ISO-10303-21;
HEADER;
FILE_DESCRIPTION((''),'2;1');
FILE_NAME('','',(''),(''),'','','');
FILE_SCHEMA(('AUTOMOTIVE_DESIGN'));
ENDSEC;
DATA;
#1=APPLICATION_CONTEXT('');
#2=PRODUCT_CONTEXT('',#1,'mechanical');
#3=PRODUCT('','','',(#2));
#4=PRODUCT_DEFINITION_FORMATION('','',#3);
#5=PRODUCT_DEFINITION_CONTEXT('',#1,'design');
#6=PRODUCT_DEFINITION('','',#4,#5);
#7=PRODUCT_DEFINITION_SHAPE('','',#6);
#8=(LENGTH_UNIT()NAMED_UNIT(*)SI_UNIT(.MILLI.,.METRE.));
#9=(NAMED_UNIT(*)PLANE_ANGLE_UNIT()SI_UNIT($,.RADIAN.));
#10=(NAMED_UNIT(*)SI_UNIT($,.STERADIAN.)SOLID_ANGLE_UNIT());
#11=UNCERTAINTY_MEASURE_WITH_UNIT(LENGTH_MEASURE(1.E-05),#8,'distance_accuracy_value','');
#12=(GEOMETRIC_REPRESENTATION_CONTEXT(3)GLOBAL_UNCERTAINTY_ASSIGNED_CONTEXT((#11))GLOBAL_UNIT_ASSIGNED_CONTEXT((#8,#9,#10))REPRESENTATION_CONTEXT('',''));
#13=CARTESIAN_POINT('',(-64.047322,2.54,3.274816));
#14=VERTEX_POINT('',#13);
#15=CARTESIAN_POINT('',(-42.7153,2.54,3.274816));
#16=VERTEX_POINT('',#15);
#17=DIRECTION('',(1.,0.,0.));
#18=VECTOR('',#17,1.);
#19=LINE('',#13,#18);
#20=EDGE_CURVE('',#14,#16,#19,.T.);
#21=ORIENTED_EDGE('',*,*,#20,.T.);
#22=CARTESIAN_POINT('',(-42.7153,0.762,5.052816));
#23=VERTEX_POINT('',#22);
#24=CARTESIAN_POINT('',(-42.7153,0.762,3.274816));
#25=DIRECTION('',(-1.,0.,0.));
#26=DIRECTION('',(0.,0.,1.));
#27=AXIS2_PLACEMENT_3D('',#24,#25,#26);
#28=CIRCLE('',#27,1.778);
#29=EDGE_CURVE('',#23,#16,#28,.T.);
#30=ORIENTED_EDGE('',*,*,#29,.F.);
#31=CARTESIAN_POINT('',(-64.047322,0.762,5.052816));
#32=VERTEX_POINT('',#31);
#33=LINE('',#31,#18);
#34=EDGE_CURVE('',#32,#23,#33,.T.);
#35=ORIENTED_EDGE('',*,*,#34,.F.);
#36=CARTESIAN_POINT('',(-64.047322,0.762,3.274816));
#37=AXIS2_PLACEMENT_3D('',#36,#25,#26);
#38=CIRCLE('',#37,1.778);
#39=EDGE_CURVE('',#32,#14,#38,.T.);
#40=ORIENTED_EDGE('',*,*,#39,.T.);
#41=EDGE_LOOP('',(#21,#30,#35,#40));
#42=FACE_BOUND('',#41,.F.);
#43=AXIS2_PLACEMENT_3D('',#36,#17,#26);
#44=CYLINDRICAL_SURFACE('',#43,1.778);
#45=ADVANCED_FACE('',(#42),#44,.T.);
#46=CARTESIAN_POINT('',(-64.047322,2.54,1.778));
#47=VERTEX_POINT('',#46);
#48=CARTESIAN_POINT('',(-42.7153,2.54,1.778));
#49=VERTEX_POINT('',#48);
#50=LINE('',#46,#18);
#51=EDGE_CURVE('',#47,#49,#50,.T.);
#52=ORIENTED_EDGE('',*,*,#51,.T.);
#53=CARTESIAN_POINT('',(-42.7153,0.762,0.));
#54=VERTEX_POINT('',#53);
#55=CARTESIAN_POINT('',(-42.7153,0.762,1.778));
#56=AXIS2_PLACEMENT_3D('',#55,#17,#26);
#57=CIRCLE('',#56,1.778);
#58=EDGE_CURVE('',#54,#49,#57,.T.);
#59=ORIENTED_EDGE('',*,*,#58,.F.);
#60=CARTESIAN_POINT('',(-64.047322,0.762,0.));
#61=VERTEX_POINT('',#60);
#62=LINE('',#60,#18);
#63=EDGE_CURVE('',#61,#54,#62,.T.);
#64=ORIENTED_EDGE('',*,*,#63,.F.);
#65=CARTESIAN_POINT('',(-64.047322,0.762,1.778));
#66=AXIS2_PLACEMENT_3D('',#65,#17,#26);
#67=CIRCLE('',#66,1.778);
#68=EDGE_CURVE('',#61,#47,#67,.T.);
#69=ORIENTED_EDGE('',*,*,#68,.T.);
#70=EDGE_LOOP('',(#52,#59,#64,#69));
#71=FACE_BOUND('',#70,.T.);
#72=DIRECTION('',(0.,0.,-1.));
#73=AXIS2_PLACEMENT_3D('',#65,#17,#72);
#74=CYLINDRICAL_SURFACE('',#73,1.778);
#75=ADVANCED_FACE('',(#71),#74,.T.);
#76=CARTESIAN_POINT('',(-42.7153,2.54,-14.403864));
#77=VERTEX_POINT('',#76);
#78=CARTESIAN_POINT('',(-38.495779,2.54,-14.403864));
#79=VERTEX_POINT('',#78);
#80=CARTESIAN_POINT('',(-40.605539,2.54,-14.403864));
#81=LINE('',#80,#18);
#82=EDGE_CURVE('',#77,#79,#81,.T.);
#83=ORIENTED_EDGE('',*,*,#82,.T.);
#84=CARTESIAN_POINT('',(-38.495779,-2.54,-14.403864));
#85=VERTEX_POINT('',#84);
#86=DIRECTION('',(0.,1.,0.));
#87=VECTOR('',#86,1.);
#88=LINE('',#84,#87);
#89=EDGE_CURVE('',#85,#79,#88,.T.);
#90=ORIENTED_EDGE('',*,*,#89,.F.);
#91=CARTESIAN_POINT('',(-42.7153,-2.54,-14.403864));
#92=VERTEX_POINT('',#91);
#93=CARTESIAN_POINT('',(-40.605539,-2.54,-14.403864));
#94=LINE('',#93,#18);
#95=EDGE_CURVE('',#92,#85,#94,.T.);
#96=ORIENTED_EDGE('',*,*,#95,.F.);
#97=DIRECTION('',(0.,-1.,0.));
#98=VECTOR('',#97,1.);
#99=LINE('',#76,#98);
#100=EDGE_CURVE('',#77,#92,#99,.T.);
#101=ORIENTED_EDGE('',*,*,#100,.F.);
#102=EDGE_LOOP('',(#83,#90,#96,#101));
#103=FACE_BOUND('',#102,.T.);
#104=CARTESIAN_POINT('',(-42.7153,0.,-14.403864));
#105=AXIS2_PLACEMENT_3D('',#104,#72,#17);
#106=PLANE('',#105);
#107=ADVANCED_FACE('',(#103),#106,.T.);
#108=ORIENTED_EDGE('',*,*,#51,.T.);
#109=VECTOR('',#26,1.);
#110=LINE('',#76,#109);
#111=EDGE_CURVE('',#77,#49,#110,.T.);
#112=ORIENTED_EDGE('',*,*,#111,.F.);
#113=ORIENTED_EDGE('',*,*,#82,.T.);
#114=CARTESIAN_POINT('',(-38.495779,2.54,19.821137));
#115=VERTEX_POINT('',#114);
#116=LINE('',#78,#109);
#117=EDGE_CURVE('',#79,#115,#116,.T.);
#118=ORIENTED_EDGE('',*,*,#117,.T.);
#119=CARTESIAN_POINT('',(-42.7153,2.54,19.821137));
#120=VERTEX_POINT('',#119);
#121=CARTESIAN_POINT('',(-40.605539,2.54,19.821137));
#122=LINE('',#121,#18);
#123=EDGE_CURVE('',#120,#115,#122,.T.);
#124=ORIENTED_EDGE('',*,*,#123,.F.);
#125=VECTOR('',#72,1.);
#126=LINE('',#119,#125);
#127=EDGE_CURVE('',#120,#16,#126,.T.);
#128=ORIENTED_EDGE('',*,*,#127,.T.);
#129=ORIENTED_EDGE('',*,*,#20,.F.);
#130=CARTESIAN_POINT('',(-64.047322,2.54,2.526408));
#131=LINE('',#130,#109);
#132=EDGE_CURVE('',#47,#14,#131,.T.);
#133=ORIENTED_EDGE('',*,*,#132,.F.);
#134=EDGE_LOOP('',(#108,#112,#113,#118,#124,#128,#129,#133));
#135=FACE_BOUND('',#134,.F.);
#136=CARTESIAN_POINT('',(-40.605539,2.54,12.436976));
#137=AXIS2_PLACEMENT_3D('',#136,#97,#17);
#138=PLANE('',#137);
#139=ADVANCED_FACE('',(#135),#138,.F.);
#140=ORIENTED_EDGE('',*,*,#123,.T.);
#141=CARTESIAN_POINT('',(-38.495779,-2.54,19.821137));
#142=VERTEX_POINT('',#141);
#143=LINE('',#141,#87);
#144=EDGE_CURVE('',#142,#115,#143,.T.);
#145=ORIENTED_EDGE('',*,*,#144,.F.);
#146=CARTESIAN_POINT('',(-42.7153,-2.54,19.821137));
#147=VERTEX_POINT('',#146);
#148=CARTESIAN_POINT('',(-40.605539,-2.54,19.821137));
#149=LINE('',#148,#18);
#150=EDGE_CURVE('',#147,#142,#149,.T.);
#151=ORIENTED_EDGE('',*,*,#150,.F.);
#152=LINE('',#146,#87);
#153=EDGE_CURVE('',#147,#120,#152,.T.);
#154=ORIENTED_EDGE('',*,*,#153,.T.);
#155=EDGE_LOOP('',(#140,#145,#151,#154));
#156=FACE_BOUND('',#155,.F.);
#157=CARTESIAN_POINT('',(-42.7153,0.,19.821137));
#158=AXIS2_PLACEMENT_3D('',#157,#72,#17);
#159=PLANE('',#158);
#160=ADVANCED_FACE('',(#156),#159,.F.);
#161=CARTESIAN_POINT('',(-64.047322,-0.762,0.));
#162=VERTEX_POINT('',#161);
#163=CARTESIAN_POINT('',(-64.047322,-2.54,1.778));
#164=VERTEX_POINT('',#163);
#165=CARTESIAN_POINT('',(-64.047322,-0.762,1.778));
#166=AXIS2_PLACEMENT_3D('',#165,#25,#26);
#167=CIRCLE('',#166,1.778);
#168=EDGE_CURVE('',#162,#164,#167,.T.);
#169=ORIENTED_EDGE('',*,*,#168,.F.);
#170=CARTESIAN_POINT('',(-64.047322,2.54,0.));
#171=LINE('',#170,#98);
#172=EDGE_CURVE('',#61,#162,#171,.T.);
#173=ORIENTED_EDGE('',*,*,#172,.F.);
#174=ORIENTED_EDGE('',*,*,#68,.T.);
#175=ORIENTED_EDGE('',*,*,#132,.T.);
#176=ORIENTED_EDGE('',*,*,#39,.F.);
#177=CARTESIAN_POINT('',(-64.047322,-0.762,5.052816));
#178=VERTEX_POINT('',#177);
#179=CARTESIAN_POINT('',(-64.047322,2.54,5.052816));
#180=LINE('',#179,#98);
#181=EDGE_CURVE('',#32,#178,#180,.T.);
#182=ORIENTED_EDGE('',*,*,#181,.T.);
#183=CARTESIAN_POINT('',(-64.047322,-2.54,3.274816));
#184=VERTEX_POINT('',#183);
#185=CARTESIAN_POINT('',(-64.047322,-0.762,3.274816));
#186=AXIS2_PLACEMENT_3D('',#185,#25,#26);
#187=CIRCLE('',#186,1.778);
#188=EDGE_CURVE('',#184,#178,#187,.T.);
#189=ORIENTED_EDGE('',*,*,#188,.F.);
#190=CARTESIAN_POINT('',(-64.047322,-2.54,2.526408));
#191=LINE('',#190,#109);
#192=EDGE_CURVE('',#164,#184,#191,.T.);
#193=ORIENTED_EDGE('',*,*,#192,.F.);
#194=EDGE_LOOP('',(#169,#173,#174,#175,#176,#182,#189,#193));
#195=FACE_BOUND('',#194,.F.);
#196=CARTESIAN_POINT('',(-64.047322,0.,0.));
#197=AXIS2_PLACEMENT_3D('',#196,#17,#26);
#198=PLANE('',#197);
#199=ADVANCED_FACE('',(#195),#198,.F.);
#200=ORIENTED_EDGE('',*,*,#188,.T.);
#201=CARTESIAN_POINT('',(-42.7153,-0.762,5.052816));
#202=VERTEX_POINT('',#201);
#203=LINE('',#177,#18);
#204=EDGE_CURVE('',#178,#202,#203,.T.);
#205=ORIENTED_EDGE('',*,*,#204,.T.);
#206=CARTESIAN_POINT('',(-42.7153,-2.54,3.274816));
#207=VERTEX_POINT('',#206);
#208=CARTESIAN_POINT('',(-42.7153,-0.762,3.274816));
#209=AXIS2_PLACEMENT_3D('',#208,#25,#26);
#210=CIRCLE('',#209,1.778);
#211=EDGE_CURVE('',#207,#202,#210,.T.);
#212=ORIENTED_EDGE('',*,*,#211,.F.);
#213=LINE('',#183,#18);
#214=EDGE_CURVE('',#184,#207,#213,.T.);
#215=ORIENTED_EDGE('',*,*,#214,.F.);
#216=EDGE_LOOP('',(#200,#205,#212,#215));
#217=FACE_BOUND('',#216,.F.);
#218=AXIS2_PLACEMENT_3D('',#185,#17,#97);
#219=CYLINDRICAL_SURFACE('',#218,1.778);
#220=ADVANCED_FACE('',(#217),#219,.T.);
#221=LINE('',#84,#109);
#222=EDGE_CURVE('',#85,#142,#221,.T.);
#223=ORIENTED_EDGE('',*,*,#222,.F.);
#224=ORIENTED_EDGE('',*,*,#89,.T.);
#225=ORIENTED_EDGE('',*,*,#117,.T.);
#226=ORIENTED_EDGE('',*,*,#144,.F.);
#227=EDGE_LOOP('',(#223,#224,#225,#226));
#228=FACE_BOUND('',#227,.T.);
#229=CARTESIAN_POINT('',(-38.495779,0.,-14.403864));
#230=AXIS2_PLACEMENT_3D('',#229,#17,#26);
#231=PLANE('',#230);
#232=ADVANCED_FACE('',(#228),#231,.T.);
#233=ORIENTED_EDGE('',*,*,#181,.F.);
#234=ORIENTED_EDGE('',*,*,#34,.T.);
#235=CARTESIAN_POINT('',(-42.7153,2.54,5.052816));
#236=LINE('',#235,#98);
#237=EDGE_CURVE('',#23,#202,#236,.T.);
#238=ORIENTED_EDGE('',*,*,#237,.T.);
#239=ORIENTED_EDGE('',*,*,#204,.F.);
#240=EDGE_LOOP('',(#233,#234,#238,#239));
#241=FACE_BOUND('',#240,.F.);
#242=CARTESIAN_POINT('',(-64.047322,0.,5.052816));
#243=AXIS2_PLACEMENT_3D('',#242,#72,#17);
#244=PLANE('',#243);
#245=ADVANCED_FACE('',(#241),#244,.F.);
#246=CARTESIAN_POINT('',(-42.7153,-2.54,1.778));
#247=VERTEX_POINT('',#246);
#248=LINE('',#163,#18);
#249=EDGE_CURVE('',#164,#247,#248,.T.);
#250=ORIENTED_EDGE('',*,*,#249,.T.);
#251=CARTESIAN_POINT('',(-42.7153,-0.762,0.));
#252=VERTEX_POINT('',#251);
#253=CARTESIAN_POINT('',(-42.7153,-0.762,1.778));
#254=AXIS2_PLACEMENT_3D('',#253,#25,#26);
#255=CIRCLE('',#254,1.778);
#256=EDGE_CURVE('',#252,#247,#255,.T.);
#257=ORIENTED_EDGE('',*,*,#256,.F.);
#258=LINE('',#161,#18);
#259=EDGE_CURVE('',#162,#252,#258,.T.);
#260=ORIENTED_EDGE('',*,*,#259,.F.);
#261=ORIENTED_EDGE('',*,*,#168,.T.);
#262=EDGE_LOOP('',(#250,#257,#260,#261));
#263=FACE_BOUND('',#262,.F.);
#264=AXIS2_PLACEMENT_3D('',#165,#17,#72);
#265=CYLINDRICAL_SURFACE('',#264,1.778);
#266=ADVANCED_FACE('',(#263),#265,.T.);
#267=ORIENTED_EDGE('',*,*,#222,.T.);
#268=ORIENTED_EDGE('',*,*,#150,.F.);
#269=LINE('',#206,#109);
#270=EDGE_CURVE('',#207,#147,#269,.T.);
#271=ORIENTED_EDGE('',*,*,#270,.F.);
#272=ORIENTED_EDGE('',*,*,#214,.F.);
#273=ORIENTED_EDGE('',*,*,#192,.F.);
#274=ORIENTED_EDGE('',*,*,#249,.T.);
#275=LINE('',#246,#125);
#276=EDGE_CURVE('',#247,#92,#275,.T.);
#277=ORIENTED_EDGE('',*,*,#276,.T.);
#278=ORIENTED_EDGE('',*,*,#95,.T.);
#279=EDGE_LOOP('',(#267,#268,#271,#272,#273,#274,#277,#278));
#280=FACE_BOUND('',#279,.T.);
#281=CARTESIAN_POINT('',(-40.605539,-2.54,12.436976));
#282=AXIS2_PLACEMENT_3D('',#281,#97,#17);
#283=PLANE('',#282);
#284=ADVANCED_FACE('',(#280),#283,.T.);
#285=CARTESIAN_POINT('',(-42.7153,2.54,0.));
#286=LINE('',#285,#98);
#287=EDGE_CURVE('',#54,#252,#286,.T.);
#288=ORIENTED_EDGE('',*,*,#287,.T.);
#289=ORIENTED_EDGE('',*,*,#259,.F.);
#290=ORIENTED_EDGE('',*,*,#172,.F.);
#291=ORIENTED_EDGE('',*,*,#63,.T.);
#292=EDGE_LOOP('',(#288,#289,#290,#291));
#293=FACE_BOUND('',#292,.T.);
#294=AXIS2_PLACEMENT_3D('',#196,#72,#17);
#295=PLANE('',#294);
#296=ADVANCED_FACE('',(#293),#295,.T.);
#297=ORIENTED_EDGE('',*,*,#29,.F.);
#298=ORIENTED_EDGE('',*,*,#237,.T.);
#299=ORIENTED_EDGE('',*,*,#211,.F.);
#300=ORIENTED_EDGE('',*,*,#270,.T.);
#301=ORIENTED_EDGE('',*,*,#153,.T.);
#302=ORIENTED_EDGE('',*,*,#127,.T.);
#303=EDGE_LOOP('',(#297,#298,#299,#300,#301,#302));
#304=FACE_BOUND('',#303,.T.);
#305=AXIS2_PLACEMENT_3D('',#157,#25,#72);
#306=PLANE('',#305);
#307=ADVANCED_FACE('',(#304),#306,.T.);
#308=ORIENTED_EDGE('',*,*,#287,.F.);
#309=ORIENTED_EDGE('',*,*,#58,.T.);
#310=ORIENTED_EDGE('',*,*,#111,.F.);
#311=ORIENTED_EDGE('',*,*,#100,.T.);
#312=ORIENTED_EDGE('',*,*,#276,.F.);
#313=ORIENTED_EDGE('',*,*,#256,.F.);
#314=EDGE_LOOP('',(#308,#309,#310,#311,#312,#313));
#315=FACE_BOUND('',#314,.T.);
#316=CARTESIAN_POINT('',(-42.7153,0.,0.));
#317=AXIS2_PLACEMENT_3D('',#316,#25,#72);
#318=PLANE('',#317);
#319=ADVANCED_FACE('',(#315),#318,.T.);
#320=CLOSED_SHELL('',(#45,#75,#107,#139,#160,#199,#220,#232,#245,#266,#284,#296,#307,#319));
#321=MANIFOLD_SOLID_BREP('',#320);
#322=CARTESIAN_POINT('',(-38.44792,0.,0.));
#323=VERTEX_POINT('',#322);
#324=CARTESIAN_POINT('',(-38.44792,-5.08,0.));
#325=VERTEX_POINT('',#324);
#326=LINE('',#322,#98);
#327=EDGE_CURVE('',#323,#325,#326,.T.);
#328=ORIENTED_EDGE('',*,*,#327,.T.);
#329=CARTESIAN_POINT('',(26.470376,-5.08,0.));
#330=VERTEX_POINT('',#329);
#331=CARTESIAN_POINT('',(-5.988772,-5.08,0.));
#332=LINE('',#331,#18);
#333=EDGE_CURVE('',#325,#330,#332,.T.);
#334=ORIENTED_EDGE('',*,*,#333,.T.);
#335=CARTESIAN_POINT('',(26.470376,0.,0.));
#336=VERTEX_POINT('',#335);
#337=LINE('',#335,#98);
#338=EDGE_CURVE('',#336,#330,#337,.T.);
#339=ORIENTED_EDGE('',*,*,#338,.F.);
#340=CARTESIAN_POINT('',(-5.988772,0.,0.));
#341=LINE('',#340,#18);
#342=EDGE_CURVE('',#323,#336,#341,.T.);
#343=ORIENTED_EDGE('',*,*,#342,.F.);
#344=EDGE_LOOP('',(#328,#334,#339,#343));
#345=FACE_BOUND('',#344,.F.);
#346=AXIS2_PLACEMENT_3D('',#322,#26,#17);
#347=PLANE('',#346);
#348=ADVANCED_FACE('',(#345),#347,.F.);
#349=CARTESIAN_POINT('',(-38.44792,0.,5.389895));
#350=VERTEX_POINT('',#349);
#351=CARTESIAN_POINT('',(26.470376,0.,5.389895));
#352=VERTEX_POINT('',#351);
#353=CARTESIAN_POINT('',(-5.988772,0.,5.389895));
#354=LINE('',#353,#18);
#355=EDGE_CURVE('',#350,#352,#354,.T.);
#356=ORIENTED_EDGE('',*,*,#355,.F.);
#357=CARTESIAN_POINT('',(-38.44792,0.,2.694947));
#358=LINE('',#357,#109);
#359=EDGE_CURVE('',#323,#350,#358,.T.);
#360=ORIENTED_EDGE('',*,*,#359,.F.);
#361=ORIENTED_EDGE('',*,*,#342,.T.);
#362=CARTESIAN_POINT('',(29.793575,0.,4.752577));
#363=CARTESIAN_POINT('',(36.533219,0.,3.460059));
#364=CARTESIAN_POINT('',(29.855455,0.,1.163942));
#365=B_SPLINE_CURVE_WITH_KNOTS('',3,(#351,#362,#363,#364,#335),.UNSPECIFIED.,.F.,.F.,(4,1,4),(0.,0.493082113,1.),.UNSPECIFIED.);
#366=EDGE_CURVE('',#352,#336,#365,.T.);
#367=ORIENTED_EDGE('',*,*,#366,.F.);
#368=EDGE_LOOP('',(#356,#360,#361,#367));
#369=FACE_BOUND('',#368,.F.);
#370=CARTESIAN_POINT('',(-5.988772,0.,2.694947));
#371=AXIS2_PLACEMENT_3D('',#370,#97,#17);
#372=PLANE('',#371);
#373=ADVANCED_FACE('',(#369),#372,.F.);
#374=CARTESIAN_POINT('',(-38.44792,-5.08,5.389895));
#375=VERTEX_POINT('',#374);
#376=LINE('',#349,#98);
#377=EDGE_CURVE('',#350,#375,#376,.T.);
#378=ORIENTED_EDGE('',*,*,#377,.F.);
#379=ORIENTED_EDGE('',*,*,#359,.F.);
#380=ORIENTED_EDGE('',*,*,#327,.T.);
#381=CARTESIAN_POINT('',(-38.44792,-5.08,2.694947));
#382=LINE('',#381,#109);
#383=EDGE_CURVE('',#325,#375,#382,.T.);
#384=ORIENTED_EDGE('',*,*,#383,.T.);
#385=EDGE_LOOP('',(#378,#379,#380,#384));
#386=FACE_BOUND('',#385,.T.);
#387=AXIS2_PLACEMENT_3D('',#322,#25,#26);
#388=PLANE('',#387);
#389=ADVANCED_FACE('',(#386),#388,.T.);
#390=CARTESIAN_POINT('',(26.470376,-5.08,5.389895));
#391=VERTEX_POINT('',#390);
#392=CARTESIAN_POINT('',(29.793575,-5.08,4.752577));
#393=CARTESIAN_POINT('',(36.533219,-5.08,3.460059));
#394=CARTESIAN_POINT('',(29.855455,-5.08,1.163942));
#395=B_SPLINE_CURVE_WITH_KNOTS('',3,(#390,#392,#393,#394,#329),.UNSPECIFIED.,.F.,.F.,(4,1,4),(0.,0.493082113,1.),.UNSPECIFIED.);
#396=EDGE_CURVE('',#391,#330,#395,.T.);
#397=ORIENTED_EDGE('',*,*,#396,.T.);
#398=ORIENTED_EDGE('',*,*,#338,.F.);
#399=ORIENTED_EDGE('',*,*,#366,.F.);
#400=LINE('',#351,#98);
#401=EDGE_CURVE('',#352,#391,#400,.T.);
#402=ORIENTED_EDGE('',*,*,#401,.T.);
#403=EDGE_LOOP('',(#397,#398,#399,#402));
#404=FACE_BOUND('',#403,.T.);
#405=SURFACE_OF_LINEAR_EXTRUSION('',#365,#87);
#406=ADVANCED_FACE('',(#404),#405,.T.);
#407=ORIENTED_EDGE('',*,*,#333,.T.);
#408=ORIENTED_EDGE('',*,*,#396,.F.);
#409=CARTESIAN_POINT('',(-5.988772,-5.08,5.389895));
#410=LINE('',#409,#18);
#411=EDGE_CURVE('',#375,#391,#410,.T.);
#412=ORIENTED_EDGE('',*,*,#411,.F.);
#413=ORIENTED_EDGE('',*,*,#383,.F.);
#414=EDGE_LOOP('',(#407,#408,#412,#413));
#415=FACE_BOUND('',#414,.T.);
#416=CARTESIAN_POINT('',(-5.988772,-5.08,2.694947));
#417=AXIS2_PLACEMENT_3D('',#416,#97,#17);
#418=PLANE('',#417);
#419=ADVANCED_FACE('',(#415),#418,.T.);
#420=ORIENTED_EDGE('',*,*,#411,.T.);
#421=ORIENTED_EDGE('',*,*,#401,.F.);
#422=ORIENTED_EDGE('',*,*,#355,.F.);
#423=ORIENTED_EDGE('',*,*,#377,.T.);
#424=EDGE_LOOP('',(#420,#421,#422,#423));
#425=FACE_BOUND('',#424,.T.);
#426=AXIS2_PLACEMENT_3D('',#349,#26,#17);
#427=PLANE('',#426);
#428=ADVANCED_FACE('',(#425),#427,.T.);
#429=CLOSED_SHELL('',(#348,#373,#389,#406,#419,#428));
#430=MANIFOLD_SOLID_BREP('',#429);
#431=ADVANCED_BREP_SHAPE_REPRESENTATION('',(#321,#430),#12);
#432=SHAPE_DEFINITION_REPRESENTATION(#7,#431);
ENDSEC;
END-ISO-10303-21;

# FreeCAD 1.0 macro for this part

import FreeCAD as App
import Part
import Sketcher

V = App.Vector
Q = App.Units.Quantity


def edges_at(feature, points):
    """Names of the edges that pass closest to the given points."""
    edges = feature.Shape.Edges
    near = lambda p: min(range(len(edges)), key=lambda i: edges[i].distToShape(Part.Vertex(*p))[0])
    return sorted({f"Edge{near(p) + 1}" for p in points})


def add_polygon(sketch, points):
    """Adds a closed chain of lines whose ends are joined by coincident constraints."""
    first, n = sketch.GeometryCount, len(points)
    for a, b in zip(points, points[1:] + points[:1]):
        sketch.addGeometry(Part.LineSegment(App.Vector(*a, 0), App.Vector(*b, 0)), False)
    for i in range(n):
        sketch.addConstraint(Sketcher.Constraint("Coincident", first + i, 2, first + (i + 1) % n, 1))

doc = App.newDocument("Part")
params = doc.addObject("Spreadsheet::Sheet", "Params")
for row, (alias, value) in enumerate([
    ("pad1_length", "0.2 in"),
    ("fillet_radius", "0.07 in"),
    ("pad2_length", "0.2 in"),
], start=1):
    params.set(f"A{row}", alias)
    params.set(f"B{row}", "=" + value)
    params.setAlias(f"B{row}", alias)

body = doc.addObject("PartDesign::Body", "Body")

sketch1 = body.newObject("Sketcher::SketchObject", "Sketch")
sketch1.AttachmentSupport = (doc.getObject("XZ_Plane"), [""])
sketch1.MapMode = "FlatFace"
add_polygon(sketch1, [(-42.7, 19.8), (-42.7, 5.1), (-64, 5.1), (-64, 0), (-42.7, 0), (-42.7, -14.4), (-38.5, -14.4), (-38.5, 19.8)])
sketch1.addConstraint([
    Sketcher.Constraint("Vertical", 0),
    Sketcher.Constraint("Horizontal", 1),
    Sketcher.Constraint("Vertical", 2),
    Sketcher.Constraint("Horizontal", 3),
    Sketcher.Constraint("Vertical", 4),
    Sketcher.Constraint("Horizontal", 5),
    Sketcher.Constraint("Vertical", 6),
    Sketcher.Constraint("Horizontal", 7),
    Sketcher.Constraint("PointOnObject", 2, 2, -1),
    Sketcher.Constraint("Vertical", 0, 2, 3, 2),
    Sketcher.Constraint("DistanceY", 6, 1, 6, 2, Q("34.225001 mm")),
    Sketcher.Constraint("DistanceX", 1, 2, 1, 1, Q("21.332022 mm")),
    Sketcher.Constraint("DistanceX", 5, 1, 5, 2, Q("4.219521 mm")),
    Sketcher.Constraint("DistanceY", 0, 2, 0, 1, Q("14.768322 mm")),
    Sketcher.Constraint("DistanceX", 0, 2, -1, 1, Q("42.7153 mm")),
    Sketcher.Constraint("DistanceY", 2, 2, 2, 1, Q("5.052816 mm")),
])
pad1 = body.newObject("PartDesign::Pad", "Pad")
pad1.Profile = sketch1
pad1.setExpression("Length", "Params.pad1_length")
pad1.Midplane = True
doc.recompute()

fillet = body.newObject("PartDesign::Fillet", "Fillet")
fillet.Base = (pad1, edges_at(pad1, [
    (-53.381, -2.54, 5.053),
    (-53.381, 2.54, 0),
    (-53.381, 2.54, 5.053),
    (-53.381, -2.54, 0),
]))
fillet.setExpression("Radius", "Params.fillet_radius")
body2 = doc.addObject("PartDesign::Body", "Body001")

sketch2 = body2.newObject("Sketcher::SketchObject", "Sketch001")
sketch2.AttachmentSupport = (doc.getObject("XZ_Plane001"), [""])
sketch2.MapMode = "FlatFace"
sketch2.addGeometry([
    Part.LineSegment(V(-38.44792, 5.389895, 0), V(-38.44792, 0, 0)),
    Part.LineSegment(V(-38.44792, 0, 0), V(26.470376, 0, 0)),
    Part.BSplineCurve([V(26.470376, 5.389895, 0), V(29.793575, 4.752577, 0), V(36.533219, 3.460059, 0), V(29.855455, 1.163942, 0), V(26.470376, 0, 0)], [4, 1, 4], [0, 0.493082113, 1], False, 3, [1, 1, 1, 1, 1], False),
    Part.LineSegment(V(26.470376, 5.389895, 0), V(-38.44792, 5.389895, 0)),
], False)
sketch2.addConstraint([
    Sketcher.Constraint("Block", 2),
    Sketcher.Constraint("Coincident", 0, 2, 1, 1),
    Sketcher.Constraint("Coincident", 1, 2, 2, 2),
    Sketcher.Constraint("Coincident", 2, 1, 3, 1),
    Sketcher.Constraint("Coincident", 3, 2, 0, 1),
    Sketcher.Constraint("Vertical", 0),
    Sketcher.Constraint("Horizontal", 1),
    Sketcher.Constraint("Horizontal", 3),
    Sketcher.Constraint("DistanceX", 1, 1, 1, 2, Q("64.918296 mm")),
])
pad2 = body2.newObject("PartDesign::Pad", "Pad001")
pad2.Profile = sketch2
pad2.setExpression("Length", "Params.pad2_length")

doc.recompute()
